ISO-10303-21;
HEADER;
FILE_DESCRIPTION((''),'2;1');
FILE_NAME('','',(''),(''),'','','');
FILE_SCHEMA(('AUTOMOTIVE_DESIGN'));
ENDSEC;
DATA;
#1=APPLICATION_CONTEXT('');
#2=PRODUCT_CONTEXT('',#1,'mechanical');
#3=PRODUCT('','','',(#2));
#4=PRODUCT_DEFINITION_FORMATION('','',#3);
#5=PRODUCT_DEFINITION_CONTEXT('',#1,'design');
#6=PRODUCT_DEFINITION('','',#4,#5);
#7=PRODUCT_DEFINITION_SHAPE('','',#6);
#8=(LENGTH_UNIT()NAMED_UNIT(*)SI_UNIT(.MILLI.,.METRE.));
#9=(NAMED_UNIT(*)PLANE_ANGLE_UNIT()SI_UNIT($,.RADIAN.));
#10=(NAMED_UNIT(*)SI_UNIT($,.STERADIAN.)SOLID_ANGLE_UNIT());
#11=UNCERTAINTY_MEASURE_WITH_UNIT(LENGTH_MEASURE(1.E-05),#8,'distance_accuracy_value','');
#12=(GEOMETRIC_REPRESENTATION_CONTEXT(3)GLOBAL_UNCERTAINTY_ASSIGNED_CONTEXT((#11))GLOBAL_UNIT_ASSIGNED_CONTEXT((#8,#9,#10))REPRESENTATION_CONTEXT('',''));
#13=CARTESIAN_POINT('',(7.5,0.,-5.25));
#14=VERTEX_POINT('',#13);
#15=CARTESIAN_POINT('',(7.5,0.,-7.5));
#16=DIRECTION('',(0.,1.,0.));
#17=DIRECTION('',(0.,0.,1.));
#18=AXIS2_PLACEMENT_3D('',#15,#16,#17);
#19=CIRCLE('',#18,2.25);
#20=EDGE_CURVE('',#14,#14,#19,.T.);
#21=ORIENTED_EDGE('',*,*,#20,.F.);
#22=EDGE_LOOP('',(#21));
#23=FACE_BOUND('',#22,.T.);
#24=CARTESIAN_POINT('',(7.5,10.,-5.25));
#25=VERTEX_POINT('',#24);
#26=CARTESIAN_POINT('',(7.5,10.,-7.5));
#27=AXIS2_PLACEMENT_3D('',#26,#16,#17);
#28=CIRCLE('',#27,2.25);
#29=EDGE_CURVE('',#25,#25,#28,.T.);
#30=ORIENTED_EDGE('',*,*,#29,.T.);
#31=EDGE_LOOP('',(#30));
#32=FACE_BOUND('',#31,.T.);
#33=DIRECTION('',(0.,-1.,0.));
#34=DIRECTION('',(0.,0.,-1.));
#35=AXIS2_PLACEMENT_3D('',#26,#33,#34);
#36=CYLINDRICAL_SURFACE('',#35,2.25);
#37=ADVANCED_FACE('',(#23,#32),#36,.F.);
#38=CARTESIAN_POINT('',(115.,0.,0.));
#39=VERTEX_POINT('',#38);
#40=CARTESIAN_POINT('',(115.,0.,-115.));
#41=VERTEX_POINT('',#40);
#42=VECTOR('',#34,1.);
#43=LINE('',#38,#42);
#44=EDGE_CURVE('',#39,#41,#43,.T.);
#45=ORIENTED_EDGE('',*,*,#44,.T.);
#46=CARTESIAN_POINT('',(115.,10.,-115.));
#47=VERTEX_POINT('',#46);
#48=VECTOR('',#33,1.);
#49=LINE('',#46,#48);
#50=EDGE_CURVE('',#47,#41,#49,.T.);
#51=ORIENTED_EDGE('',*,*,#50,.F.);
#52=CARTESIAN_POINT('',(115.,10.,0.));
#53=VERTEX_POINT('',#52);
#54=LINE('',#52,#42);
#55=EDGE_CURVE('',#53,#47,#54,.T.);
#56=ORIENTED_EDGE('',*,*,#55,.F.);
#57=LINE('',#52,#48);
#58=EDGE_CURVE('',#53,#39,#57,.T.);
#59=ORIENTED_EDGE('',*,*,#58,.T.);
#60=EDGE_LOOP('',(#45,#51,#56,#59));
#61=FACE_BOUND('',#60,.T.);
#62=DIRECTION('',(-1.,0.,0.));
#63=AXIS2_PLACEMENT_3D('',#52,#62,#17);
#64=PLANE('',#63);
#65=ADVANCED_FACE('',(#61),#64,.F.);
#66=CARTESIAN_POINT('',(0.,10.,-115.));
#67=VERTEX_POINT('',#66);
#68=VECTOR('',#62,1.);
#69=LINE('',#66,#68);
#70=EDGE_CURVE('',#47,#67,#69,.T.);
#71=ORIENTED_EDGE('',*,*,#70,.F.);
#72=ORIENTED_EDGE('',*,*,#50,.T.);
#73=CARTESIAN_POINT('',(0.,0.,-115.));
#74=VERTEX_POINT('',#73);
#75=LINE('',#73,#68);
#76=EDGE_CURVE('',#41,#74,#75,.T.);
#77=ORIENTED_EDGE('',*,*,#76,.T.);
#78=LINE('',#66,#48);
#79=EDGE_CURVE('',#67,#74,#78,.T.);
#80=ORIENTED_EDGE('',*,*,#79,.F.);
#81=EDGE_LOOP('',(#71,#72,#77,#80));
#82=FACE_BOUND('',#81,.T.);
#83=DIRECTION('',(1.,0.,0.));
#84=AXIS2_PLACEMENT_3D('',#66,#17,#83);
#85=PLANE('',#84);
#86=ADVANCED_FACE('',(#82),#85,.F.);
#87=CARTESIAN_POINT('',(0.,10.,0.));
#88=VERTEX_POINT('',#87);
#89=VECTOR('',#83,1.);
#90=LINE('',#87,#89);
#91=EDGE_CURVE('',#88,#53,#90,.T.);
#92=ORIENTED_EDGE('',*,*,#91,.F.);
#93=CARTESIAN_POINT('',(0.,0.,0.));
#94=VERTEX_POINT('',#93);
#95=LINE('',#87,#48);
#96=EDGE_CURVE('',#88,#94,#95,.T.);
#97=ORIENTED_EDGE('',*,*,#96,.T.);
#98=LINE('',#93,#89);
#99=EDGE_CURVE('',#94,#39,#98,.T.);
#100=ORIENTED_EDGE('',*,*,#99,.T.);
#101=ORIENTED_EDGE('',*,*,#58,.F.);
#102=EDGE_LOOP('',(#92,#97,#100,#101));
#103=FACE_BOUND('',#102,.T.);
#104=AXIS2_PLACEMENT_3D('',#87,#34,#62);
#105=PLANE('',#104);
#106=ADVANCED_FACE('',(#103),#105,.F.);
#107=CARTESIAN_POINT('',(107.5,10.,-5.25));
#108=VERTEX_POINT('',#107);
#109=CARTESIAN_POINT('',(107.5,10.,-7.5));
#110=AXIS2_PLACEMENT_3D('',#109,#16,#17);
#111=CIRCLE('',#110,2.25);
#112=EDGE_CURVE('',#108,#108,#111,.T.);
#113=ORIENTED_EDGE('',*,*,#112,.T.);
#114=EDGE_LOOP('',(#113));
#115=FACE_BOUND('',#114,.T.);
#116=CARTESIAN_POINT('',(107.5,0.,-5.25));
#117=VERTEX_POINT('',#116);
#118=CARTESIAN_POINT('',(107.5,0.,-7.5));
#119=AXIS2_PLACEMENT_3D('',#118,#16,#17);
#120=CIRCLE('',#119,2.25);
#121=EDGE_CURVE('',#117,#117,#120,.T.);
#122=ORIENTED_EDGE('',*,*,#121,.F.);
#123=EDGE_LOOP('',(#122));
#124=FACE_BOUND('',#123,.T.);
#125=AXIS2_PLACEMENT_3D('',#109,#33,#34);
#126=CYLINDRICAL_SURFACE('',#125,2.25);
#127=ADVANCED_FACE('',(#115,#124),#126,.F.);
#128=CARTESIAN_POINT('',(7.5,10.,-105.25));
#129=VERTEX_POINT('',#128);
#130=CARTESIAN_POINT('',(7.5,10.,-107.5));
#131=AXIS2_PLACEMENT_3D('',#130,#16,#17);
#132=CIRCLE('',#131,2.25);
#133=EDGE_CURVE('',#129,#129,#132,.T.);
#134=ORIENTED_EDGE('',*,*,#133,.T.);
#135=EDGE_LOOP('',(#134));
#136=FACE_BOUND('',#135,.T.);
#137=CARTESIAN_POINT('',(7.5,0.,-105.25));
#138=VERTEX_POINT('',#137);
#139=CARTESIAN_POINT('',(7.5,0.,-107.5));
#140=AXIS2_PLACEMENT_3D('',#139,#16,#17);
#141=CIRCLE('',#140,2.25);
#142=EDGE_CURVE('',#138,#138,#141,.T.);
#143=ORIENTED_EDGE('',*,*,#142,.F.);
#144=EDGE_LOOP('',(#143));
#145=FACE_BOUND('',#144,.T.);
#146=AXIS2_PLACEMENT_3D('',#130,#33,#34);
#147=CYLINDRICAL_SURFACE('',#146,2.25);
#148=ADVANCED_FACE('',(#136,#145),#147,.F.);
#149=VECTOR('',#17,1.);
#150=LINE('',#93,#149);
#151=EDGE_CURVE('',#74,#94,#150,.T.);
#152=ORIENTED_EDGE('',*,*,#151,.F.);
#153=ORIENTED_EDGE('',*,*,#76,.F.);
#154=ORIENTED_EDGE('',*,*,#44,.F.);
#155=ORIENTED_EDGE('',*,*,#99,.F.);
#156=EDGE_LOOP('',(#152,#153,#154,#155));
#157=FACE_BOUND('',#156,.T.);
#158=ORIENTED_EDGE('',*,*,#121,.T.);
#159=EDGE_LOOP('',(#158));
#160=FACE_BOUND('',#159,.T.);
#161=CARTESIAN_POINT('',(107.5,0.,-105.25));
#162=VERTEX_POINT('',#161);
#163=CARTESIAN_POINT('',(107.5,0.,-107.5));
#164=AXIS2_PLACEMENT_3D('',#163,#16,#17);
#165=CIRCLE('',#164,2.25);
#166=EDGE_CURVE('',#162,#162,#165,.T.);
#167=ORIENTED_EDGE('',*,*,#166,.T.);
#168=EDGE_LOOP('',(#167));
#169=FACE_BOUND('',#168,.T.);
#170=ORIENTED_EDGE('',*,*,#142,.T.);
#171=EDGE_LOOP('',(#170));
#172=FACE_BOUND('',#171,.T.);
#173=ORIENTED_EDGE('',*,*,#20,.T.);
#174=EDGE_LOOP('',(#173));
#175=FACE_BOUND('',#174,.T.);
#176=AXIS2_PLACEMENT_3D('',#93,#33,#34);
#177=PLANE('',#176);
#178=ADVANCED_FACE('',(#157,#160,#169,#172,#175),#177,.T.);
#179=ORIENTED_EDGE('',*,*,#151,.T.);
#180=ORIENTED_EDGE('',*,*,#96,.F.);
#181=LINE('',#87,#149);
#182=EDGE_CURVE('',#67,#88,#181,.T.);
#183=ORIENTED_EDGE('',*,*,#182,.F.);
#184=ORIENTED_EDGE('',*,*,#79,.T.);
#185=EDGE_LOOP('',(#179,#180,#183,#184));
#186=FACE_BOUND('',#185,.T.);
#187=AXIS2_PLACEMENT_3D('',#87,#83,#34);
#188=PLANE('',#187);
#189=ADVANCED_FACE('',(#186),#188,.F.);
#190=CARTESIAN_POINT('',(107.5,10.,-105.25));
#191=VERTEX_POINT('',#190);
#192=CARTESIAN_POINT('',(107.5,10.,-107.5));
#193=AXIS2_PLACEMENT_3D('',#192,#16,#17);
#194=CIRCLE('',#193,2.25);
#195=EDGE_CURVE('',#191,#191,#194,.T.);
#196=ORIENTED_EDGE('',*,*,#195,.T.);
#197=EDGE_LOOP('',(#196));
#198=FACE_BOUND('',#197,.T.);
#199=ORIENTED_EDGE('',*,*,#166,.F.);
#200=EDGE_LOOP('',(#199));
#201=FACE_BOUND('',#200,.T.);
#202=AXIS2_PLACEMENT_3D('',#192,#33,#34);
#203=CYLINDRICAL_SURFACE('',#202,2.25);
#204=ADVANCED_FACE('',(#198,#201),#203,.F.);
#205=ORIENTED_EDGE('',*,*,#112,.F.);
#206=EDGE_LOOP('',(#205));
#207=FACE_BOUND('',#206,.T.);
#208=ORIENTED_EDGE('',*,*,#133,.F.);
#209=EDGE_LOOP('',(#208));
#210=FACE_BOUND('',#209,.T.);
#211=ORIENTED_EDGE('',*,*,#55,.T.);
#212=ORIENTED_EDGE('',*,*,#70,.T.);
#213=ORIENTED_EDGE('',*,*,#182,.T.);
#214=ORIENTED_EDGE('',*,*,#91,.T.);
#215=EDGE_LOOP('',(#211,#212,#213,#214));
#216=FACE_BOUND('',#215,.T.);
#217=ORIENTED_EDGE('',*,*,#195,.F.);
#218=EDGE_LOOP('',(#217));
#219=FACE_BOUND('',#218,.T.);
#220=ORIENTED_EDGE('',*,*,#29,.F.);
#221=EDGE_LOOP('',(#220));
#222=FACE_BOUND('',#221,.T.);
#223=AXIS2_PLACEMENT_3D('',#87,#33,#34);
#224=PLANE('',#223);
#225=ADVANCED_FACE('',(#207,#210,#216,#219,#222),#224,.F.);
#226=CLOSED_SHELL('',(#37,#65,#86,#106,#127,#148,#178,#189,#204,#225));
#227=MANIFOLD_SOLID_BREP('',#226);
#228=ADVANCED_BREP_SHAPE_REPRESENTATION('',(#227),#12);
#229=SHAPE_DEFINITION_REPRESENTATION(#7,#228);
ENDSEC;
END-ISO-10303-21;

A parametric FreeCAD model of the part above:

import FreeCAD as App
import Part
import Sketcher


def add_polygon(sketch, points):
    """Adds a closed chain of lines whose ends are joined by coincident constraints."""
    first, n = sketch.GeometryCount, len(points)
    for a, b in zip(points, points[1:] + points[:1]):
        sketch.addGeometry(Part.LineSegment(App.Vector(*a, 0), App.Vector(*b, 0)), False)
    for i in range(n):
        sketch.addConstraint(Sketcher.Constraint("Coincident", first + i, 2, first + (i + 1) % n, 1))

doc = App.newDocument("Part")
body = doc.addObject("PartDesign::Body", "Body")

# Sketch on XZ plane
sketch1 = body.newObject("Sketcher::SketchObject", "Sketch")
sketch1.AttachmentSupport = (doc.getObject("XZ_Plane"), [""])
sketch1.MapMode = "FlatFace"
add_polygon(sketch1, [(0, -115), (0, 0), (115, 0), (115, -115)])  # lines 0-3
sketch1.addGeometry(Part.Circle(App.Vector(7.5, -7.5, 0), App.Vector(0, 0, 1), 2.25), False)  # 4
sketch1.addGeometry(Part.Circle(App.Vector(107.5, -7.5, 0), App.Vector(0, 0, 1), 2.25), False)  # 5
sketch1.addGeometry(Part.Circle(App.Vector(7.5, -107.5, 0), App.Vector(0, 0, 1), 2.25), False)  # 6
sketch1.addGeometry(Part.Circle(App.Vector(107.5, -107.5, 0), App.Vector(0, 0, 1), 2.25), False)  # 7
sketch1.addConstraint([
    Sketcher.Constraint("Vertical", 0),
    Sketcher.Constraint("Horizontal", 1),
    Sketcher.Constraint("Vertical", 2),
    Sketcher.Constraint("Horizontal", 3),
    Sketcher.Constraint("Coincident", 0, 2, -1, 1),
    Sketcher.Constraint("Equal", 4, 5),
    Sketcher.Constraint("Equal", 5, 6),
    Sketcher.Constraint("Equal", 6, 7),
    Sketcher.Constraint("Horizontal", 4, 3, 5, 3),
    Sketcher.Constraint("Horizontal", 6, 3, 7, 3),
    Sketcher.Constraint("Vertical", 4, 3, 6, 3),
    Sketcher.Constraint("Vertical", 5, 3, 7, 3),
    Sketcher.Constraint("Equal", 3, 0),
    Sketcher.Constraint("Diameter", 4, 4.5),
    Sketcher.Constraint("DistanceX", 1, 1, 1, 2, 115.0),
    Sketcher.Constraint("DistanceX", 4, 3, 5, 3, 100.0),
    Sketcher.Constraint("DistanceY", 6, 3, 4, 3, 100.0),
    Sketcher.Constraint("DistanceX", -1, 1, 4, 3, 7.5),
    Sketcher.Constraint("DistanceY", 4, 3, -1, 1, 7.5),
])
pad1 = body.newObject("PartDesign::Pad", "Pad")
pad1.Profile = sketch1
pad1.Length = 10
pad1.Reversed = True

doc.recompute()
